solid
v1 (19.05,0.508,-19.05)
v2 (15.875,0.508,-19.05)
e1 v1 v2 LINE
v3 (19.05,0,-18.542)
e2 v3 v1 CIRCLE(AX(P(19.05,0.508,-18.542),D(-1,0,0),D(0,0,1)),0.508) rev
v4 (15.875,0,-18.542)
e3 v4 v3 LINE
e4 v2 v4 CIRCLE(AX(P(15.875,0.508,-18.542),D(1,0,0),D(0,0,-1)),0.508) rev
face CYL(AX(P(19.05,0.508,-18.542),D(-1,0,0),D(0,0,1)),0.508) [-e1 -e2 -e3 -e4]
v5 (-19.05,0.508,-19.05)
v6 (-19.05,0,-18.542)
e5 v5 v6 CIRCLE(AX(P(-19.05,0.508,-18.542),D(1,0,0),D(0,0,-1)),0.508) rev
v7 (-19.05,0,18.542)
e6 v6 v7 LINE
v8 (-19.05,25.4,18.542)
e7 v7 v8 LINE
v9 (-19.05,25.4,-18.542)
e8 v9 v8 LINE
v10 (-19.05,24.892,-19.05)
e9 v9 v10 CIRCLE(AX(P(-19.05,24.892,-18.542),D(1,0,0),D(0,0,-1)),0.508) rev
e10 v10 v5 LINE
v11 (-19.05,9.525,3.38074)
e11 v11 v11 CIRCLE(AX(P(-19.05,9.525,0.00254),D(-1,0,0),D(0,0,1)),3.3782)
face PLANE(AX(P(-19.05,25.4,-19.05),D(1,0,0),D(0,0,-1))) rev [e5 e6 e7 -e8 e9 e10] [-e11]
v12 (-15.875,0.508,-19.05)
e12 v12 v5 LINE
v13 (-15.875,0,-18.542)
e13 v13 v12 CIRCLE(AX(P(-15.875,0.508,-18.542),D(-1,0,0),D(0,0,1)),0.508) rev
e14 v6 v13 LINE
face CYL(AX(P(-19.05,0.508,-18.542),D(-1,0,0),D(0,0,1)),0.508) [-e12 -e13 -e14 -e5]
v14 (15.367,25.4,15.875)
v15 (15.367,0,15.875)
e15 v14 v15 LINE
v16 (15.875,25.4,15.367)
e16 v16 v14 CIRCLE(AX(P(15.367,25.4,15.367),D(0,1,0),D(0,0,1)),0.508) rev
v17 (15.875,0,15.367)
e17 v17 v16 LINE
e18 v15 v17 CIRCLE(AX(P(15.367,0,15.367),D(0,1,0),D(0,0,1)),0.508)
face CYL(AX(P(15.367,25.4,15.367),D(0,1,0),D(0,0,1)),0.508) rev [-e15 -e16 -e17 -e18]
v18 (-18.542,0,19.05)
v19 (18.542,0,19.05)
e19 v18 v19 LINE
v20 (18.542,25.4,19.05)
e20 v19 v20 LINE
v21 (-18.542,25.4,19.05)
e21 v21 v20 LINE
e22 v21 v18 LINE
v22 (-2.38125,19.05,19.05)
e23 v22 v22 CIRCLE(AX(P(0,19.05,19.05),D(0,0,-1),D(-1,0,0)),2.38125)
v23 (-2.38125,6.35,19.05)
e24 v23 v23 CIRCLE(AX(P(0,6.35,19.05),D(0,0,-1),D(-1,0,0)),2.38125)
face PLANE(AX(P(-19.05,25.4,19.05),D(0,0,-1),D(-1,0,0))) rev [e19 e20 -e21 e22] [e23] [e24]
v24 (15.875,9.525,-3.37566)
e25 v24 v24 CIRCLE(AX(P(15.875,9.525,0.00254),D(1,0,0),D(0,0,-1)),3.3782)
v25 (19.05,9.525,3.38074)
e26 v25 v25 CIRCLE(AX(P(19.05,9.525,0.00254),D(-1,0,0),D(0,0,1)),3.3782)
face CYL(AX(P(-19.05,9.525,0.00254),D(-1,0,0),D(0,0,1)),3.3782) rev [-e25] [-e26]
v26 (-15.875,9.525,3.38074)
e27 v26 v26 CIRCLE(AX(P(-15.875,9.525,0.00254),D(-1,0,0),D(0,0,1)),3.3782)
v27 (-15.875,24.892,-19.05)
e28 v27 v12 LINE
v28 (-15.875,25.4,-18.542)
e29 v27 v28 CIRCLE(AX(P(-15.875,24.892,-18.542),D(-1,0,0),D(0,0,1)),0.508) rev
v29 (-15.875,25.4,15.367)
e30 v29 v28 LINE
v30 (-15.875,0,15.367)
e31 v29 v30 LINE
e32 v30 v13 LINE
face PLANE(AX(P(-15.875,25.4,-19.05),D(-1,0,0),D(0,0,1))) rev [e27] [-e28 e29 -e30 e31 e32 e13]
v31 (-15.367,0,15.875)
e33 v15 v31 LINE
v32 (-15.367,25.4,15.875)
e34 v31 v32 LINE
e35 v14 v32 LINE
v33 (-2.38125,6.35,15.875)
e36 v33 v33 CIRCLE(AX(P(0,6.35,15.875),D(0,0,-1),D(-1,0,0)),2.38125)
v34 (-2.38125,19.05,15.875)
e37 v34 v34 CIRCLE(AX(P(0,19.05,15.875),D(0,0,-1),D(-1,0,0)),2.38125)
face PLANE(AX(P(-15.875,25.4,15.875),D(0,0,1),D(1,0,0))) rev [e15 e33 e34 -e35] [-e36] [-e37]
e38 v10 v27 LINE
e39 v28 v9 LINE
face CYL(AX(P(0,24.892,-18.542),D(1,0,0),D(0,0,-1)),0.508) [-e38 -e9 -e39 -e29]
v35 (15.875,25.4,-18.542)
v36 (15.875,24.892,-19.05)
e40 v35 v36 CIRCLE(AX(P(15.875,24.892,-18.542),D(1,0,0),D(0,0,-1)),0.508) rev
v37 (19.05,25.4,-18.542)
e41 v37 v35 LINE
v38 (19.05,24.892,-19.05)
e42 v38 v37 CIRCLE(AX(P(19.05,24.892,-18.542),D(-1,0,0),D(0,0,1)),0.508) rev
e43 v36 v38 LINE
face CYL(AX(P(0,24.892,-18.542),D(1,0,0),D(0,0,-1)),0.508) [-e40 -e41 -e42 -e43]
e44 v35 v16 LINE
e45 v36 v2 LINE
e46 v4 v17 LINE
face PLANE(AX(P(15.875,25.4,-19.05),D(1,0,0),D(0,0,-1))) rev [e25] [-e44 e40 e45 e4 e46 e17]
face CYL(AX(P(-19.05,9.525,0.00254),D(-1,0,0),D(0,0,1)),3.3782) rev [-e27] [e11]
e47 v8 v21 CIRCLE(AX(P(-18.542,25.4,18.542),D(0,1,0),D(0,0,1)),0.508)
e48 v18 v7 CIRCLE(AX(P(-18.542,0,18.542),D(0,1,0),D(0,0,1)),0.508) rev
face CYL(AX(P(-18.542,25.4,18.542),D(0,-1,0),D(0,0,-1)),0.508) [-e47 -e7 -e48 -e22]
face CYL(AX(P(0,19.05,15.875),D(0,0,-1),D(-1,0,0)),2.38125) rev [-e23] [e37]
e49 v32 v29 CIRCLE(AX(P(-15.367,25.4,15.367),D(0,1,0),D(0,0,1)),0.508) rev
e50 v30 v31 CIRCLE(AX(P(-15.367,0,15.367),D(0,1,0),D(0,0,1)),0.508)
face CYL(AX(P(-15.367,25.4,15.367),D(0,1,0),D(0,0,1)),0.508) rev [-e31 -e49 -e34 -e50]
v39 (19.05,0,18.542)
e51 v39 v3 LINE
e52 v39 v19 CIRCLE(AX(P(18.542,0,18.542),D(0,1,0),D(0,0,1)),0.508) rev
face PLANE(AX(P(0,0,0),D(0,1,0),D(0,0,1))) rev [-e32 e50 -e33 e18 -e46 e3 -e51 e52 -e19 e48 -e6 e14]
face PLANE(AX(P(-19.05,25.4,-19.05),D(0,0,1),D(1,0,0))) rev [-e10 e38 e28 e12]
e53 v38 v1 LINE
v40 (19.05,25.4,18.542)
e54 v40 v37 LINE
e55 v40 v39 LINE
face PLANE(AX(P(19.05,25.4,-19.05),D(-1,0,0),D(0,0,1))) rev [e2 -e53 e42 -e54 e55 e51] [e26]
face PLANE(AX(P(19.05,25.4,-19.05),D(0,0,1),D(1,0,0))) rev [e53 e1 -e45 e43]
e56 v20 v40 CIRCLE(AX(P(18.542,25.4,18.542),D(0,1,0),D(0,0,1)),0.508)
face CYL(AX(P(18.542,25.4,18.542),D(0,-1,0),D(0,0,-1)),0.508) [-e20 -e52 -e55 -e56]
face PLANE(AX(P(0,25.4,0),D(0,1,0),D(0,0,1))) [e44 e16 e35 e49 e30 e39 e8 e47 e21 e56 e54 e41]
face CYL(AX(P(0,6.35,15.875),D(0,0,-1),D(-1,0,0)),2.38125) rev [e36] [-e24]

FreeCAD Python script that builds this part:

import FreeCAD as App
import Part
import Sketcher
from FreeCAD import Vector
Q = App.Units.Quantity


def edges_at(feature, points):
    """Names of the edges that pass closest to the given points."""
    edges = feature.Shape.Edges
    near = lambda p: min(range(len(edges)), key=lambda i: edges[i].distToShape(Part.Vertex(*p))[0])
    return sorted({f"Edge{near(p) + 1}" for p in points})


def add_polygon(sketch, points):
    """Adds a closed chain of lines whose ends are joined by coincident constraints."""
    first, n = sketch.GeometryCount, len(points)
    for a, b in zip(points, points[1:] + points[:1]):
        sketch.addGeometry(Part.LineSegment(App.Vector(*a, 0), App.Vector(*b, 0)), False)
    for i in range(n):
        sketch.addConstraint(Sketcher.Constraint("Coincident", first + i, 2, first + (i + 1) % n, 1))

doc = App.newDocument("Part")
body = doc.addObject("PartDesign::Body", "Body")

sketch1 = body.newObject("Sketcher::SketchObject", "Sketch")
sketch1.AttachmentSupport = (doc.getObject("XZ_Plane"), [""])
sketch1.MapMode = "FlatFace"
add_polygon(sketch1, [(-15.9, 15.9), (-15.9, -19.1), (-19.1, -19.1), (-19.1, 19.1), (19.1, 19.1), (19.1, -19.1), (15.9, -19.1), (15.9, 15.9)])
sketch1.addConstraint(Sketcher.Constraint("Vertical", 0))
sketch1.addConstraint(Sketcher.Constraint("Horizontal", 1))
sketch1.addConstraint(Sketcher.Constraint("Vertical", 2))
sketch1.addConstraint(Sketcher.Constraint("Horizontal", 3))
sketch1.addConstraint(Sketcher.Constraint("Vertical", 4))
sketch1.addConstraint(Sketcher.Constraint("Horizontal", 5))
sketch1.addConstraint(Sketcher.Constraint("Vertical", 6))
sketch1.addConstraint(Sketcher.Constraint("Horizontal", 7))
sketch1.addConstraint(Sketcher.Constraint("Symmetric", 1, 2, 3, 2, -1, 1))
sketch1.addConstraint(Sketcher.Constraint("Symmetric", 0, 2, 5, 2, -2))
sketch1.addConstraint(Sketcher.Constraint("Equal", 3, 2))
sketch1.addConstraint(Sketcher.Constraint("DistanceX", 3, 1, 3, 2, Q("1.5 in")))
sketch1.addConstraint(Sketcher.Constraint("DistanceX", 7, 2, 7, 1, Q("1.25 in")))
sketch1.addConstraint(Sketcher.Constraint("DistanceY", 0, 2, 0, 1, Q("1.375 in")))
pad1 = body.newObject("PartDesign::Pad", "Pad")
pad1.Profile = sketch1
pad1.Length = Q("1 in")
pad1.Reversed = True

sketch2 = body.newObject("Sketcher::SketchObject", "Sketch001")
sketch2.AttachmentSupport = (doc.getObject("YZ_Plane"), [""])
sketch2.MapMode = "FlatFace"
sketch2.AttachmentOffset = App.Placement(Vector(0, 0, -0.75 * 25.4), App.Rotation())
sketch2.addGeometry(Part.Circle(Vector(9.5, 0, 0), Vector(0, 0, 1), 3.4), False)
sketch2.addConstraint(Sketcher.Constraint("Diameter", 0, Q("0.266 in")))
sketch2.addConstraint(Sketcher.Constraint("DistanceX", -1, 1, 0, 3, Q("0.375 in")))
sketch2.addConstraint(Sketcher.Constraint("DistanceY", -1, 1, 0, 3, Q("0.0001 in")))
doc.recompute()
hole = body.newObject("PartDesign::Hole", "Hole")
hole.Profile = sketch2
hole.ThreadType = "None"
hole.Diameter = Q("0.266 in")
hole.DepthType = "ThroughAll"
hole.Reversed = True

sketch3 = body.newObject("Sketcher::SketchObject", "Sketch002")
sketch3.AttachmentSupport = (doc.getObject("XY_Plane"), [""])
sketch3.MapMode = "FlatFace"
sketch3.AttachmentOffset = App.Placement(Vector(0, 0, 0.625 * 25.4), App.Rotation())
sketch3.addGeometry(Part.Circle(Vector(0, 6.3, 0), Vector(0, 0, 1), 2.4), False)
sketch3.addGeometry(Part.Circle(Vector(0, 19.1, 0), Vector(0, 0, 1), 2.4), False)
sketch3.addConstraint(Sketcher.Constraint("Equal", 0, 1))
sketch3.addConstraint(Sketcher.Constraint("PointOnObject", 0, 3, -2))
sketch3.addConstraint(Sketcher.Constraint("PointOnObject", 1, 3, -2))
sketch3.addConstraint(Sketcher.Constraint("Diameter", 0, Q("0.1875 in")))
sketch3.addConstraint(Sketcher.Constraint("DistanceY", 0, 3, 1, 3, Q("0.5 in")))
sketch3.addConstraint(Sketcher.Constraint("DistanceY", -1, 1, 0, 3, Q("0.25 in")))
doc.recompute()
hole2 = body.newObject("PartDesign::Hole", "Hole001")
hole2.Profile = sketch3
hole2.ThreadType = "None"
hole2.Diameter = Q("0.1875 in")
hole2.DepthType = "ThroughAll"
hole2.Reversed = True
doc.recompute()

fillet = body.newObject("PartDesign::Fillet", "Fillet")
fillet.Base = (hole2, edges_at(hole2, [
    (17.462, 0, -19.05),
    (19.05, 12.7, 19.05),
    (-19.05, 12.7, 19.05),
    (-15.875, 12.7, 15.875),
    (15.875, 12.7, 15.875),
    (-17.462, 25.4, -19.05),
    (17.462, 25.4, -19.05),
    (-17.462, 0, -19.05),
]))
fillet.Radius = Q("0.02 in")

doc.recompute()
